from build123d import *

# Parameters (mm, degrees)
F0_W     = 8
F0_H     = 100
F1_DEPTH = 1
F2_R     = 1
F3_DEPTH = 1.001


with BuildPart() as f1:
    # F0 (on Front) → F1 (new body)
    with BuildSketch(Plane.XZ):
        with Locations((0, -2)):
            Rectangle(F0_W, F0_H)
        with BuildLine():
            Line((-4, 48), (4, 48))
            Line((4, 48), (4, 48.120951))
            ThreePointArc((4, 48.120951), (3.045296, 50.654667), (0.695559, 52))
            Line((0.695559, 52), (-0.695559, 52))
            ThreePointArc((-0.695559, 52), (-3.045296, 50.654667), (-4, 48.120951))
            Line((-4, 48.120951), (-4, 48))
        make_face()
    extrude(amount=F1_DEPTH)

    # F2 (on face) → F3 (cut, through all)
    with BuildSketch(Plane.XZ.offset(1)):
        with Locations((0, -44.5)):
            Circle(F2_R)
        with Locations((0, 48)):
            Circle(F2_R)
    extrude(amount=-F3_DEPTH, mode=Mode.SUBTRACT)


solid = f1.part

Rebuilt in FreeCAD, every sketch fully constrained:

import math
import FreeCAD as App
import Part
import Sketcher

V = App.Vector

doc = App.newDocument("Part")
params = doc.addObject("Spreadsheet::Sheet", "Params")
for row, (alias, value) in enumerate([
    ("sketch1_width", "8 mm"),
    ("pad1_length", "1 mm"),
    ("sketch2_diameter", "2 mm"),
], start=1):
    params.set(f"A{row}", alias)
    params.set(f"B{row}", "=" + value)
    params.setAlias(f"B{row}", alias)

body = doc.addObject("PartDesign::Body", "Body")

sketch1 = body.newObject("Sketcher::SketchObject", "Sketch")
sketch1.AttachmentSupport = (doc.getObject("XZ_Plane"), [""])
sketch1.MapMode = "FlatFace"
sketch1.addGeometry(Part.LineSegment(V(-4, -52, 0), V(4, -52, 0)), False)
sketch1.addGeometry(Part.LineSegment(V(4, -52, 0), V(4, 48.120951, 0)), False)
sketch1.addGeometry(Part.ArcOfCircle(Part.Circle(V(0, 48.060476, 0), V(0, 0, 1), 4.000457), math.radians(0.866179), math.radians(79.987107)), False)
sketch1.addGeometry(Part.LineSegment(V(0.695559, 52, 0), V(-0.695559, 52, 0)), False)
sketch1.addGeometry(Part.ArcOfCircle(Part.Circle(V(0, 48.060476, 0), V(0, 0, 1), 4.000457), math.radians(100.012893), math.radians(179.133821)), False)
sketch1.addGeometry(Part.LineSegment(V(-4, 48.120951, 0), V(-4, -52, 0)), False)
sketch1.addConstraint(Sketcher.Constraint("Coincident", 0, 2, 1, 1))
sketch1.addConstraint(Sketcher.Constraint("Coincident", 1, 2, 2, 1))
sketch1.addConstraint(Sketcher.Constraint("Coincident", 2, 2, 3, 1))
sketch1.addConstraint(Sketcher.Constraint("Coincident", 3, 2, 4, 1))
sketch1.addConstraint(Sketcher.Constraint("Coincident", 4, 2, 5, 1))
sketch1.addConstraint(Sketcher.Constraint("Coincident", 5, 2, 0, 1))
sketch1.addConstraint(Sketcher.Constraint("Horizontal", 0))
sketch1.addConstraint(Sketcher.Constraint("Vertical", 1))
sketch1.addConstraint(Sketcher.Constraint("Horizontal", 3))
sketch1.addConstraint(Sketcher.Constraint("Vertical", 5))
sketch1.addConstraint(Sketcher.Constraint("Coincident", 4, 3, 2, 3))
sketch1.addConstraint(Sketcher.Constraint("Equal", 2, 4))
sketch1.addConstraint(Sketcher.Constraint("Symmetric", 1, 2, 4, 2, -2))
sketch1.addConstraint(Sketcher.Constraint("DistanceX", 0, 1, 0, 2, 8.0))
sketch1.addConstraint(Sketcher.Constraint("DistanceY", 0, 2, -1, 1, 52.0))
sketch1.addConstraint(Sketcher.Constraint("DistanceY", -1, 1, 2, 2, 52.0))
sketch1.addConstraint(Sketcher.Constraint("Radius", 2, 4.000457))
sketch1.addConstraint(Sketcher.Constraint("DistanceX", 3, 2, 3, 1, 1.391118))
sketch1.setExpression("Constraints[13]", "Params.sketch1_width")
pad1 = body.newObject("PartDesign::Pad", "Pad")
pad1.Profile = sketch1
pad1.setExpression("Length", "Params.pad1_length")

sketch2 = body.newObject("Sketcher::SketchObject", "Sketch001")
sketch2.AttachmentSupport = (doc.getObject("XZ_Plane"), [""])
sketch2.MapMode = "FlatFace"
sketch2.AttachmentOffset = App.Placement(V(0, 0, 1), App.Rotation())
sketch2.addGeometry(Part.Circle(V(0, -44.5, 0), V(0, 0, 1), 1), False)
sketch2.addGeometry(Part.Circle(V(0, 48, 0), V(0, 0, 1), 1), False)
sketch2.addConstraint(Sketcher.Constraint("Equal", 0, 1))
sketch2.addConstraint(Sketcher.Constraint("PointOnObject", 0, 3, -2))
sketch2.addConstraint(Sketcher.Constraint("PointOnObject", 1, 3, -2))
sketch2.addConstraint(Sketcher.Constraint("Diameter", 0, 2.0))
sketch2.addConstraint(Sketcher.Constraint("DistanceY", -1, 1, 1, 3, 48.0))
sketch2.addConstraint(Sketcher.Constraint("DistanceY", 0, 3, -1, 1, 44.5))
sketch2.setExpression("Constraints[3]", "Params.sketch2_diameter")
pocket1 = body.newObject("PartDesign::Pocket", "Pocket")
pocket1.Profile = sketch2
pocket1.Type = "ThroughAll"

doc.recompute()
